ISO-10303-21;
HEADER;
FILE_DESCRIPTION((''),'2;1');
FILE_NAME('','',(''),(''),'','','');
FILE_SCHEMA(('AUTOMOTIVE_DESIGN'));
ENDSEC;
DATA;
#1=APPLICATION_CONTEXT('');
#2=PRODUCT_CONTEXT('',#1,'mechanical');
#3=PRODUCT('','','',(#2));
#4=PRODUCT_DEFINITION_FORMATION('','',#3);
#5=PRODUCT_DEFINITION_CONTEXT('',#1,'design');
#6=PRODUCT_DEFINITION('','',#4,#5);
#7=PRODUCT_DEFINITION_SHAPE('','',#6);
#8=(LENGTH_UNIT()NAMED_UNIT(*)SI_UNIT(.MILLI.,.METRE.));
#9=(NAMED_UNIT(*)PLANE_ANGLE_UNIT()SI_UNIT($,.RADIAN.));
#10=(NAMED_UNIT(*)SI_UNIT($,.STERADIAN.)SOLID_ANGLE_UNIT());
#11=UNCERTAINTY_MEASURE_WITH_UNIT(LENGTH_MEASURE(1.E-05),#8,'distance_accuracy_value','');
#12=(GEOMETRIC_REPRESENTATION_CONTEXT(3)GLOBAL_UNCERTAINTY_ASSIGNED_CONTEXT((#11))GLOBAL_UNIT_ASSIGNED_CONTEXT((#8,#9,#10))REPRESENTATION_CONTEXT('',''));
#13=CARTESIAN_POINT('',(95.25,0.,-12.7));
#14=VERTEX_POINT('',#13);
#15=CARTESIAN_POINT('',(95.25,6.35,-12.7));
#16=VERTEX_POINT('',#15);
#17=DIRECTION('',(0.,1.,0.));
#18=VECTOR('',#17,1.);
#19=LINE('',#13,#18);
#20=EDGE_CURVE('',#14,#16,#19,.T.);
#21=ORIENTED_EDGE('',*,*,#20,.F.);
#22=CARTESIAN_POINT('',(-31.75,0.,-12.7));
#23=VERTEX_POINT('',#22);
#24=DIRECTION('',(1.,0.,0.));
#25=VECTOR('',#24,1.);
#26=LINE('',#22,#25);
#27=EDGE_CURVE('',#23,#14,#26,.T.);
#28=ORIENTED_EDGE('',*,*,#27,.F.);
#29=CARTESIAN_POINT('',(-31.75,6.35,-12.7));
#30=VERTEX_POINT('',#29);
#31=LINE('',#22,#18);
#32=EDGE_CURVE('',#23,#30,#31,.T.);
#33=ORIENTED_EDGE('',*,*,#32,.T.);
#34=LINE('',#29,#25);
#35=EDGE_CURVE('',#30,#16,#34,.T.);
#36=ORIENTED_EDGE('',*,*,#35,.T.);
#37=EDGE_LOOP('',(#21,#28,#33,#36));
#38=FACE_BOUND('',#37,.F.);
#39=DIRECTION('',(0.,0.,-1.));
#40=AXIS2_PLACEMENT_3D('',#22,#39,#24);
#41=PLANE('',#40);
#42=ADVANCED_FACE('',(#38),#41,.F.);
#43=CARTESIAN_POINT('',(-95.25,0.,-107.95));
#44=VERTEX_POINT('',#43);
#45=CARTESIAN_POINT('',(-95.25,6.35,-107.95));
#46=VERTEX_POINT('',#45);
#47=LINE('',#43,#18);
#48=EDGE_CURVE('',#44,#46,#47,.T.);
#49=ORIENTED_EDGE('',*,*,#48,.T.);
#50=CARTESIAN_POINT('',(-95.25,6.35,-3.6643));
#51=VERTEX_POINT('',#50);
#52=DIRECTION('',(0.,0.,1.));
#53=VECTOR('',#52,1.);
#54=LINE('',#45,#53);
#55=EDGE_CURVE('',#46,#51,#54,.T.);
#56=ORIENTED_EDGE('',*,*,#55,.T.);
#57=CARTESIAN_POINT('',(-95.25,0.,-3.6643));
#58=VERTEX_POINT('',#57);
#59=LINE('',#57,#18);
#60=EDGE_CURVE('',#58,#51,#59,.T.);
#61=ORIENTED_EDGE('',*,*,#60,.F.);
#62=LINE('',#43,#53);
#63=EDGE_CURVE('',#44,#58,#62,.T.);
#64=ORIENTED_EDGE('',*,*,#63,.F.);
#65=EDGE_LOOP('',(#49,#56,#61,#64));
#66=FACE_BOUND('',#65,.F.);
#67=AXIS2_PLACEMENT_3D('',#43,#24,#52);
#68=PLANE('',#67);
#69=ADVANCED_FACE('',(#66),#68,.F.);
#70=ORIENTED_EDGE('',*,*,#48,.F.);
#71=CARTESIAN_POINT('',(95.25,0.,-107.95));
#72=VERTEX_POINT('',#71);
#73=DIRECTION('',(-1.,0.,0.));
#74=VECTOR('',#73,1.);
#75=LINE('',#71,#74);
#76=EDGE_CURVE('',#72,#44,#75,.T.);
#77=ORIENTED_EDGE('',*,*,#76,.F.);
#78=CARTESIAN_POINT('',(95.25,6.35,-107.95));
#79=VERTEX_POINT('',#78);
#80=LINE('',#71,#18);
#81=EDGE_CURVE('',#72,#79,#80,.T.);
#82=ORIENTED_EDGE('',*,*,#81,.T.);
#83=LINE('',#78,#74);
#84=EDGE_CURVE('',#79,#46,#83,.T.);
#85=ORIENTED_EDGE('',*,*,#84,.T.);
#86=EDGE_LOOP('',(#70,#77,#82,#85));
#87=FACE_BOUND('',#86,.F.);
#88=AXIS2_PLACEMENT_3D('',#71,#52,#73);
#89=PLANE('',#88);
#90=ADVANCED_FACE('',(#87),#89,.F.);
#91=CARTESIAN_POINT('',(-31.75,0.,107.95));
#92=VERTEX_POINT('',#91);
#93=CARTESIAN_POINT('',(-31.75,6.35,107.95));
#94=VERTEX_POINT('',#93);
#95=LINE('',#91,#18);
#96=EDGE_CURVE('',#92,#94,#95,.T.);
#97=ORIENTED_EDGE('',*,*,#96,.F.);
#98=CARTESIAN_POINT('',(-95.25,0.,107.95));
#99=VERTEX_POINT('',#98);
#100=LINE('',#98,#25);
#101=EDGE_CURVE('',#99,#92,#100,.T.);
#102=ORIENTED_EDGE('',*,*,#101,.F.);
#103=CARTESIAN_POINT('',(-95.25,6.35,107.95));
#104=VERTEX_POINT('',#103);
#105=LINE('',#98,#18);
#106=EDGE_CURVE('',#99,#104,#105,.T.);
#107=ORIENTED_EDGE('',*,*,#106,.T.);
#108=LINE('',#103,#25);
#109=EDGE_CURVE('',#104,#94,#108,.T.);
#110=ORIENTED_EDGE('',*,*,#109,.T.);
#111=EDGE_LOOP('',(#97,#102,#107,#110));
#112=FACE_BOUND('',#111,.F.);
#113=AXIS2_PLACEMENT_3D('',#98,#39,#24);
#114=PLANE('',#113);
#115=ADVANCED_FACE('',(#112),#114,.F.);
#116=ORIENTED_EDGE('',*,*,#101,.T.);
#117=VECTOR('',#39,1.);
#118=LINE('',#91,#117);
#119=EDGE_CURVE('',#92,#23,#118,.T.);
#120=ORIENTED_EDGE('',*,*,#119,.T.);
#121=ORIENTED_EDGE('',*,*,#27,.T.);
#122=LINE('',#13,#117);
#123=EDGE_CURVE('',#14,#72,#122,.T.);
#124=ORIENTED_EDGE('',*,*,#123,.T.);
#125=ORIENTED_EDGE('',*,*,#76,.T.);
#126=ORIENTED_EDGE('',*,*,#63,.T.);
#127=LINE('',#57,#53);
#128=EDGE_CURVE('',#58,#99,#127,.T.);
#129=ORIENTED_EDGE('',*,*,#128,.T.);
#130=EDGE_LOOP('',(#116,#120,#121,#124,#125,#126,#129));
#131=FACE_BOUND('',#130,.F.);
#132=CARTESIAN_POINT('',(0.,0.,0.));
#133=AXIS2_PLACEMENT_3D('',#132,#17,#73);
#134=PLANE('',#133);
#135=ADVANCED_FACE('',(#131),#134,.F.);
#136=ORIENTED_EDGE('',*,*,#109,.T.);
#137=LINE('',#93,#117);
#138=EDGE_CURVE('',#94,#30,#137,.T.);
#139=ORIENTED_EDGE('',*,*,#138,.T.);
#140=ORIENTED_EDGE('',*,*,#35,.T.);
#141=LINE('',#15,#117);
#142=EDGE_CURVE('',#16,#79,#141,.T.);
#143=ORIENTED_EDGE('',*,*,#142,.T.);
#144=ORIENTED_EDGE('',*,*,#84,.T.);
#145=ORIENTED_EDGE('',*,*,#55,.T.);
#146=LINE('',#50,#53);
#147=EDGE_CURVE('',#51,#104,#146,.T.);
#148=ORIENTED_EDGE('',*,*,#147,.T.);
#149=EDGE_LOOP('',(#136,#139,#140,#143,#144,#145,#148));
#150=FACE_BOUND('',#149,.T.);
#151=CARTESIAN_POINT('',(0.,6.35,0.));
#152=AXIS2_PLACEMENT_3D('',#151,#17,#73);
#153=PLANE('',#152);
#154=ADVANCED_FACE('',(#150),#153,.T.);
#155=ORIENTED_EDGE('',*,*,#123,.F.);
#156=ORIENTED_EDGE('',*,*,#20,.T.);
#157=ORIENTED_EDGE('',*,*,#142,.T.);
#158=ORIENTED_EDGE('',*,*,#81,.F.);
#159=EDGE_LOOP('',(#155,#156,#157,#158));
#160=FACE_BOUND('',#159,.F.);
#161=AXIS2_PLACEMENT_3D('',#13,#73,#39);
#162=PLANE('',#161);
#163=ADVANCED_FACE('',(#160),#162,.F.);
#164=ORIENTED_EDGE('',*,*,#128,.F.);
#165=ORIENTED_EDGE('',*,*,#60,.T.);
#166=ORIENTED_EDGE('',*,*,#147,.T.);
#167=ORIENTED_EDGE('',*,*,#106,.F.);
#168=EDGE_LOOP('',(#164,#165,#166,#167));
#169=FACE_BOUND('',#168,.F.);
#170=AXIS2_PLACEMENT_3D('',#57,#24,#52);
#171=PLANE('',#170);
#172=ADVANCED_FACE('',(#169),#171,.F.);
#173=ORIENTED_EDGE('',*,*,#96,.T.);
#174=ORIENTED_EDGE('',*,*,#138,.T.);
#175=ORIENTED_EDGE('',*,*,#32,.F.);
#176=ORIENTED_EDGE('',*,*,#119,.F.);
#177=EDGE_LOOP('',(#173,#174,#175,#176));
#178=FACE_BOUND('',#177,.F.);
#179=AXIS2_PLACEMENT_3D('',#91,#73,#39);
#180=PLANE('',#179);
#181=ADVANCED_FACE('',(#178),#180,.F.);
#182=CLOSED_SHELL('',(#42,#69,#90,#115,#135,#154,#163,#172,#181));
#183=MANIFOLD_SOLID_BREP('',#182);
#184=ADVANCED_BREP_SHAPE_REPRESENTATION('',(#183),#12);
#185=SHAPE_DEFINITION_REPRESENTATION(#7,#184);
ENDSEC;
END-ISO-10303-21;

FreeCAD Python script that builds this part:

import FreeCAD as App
import Part
import Sketcher
from FreeCAD import Vector
Q = App.Units.Quantity


def add_polygon(sketch, points):
    """Adds a closed chain of lines whose ends are joined by coincident constraints."""
    first, n = sketch.GeometryCount, len(points)
    for a, b in zip(points, points[1:] + points[:1]):
        sketch.addGeometry(Part.LineSegment(App.Vector(*a, 0), App.Vector(*b, 0)), False)
    for i in range(n):
        sketch.addConstraint(Sketcher.Constraint("Coincident", first + i, 2, first + (i + 1) % n, 1))

doc = App.newDocument("Part")
params = doc.addObject("Spreadsheet::Sheet", "Params")
for row, (alias, value) in enumerate([
    ("sketch1_width", "2.5 in"),
    ("sketch1_width2", "7.5 in"),
    ("sketch1_height", "8.5 in"),
    ("sketch1_height2", "3.75 in"),
    ("pad1_length", "0.25 in"),
], start=1):
    params.set(f"A{row}", alias)
    params.set(f"B{row}", "=" + value)
    params.setAlias(f"B{row}", alias)

body = doc.addObject("PartDesign::Body", "Body")

# Sketch on XZ plane
sketch1 = body.newObject("Sketcher::SketchObject", "Sketch")
sketch1.AttachmentSupport = (doc.getObject("XZ_Plane"), [""])
sketch1.MapMode = "FlatFace"
add_polygon(sketch1, [(-95, -108), (-95, 108), (-32, 108), (-32, -13), (95, -13), (95, -108)])  # lines 0-5
sketch1.addConstraint([
    Sketcher.Constraint("Vertical", 0),
    Sketcher.Constraint("Horizontal", 1),
    Sketcher.Constraint("Vertical", 2),
    Sketcher.Constraint("Horizontal", 3),
    Sketcher.Constraint("Vertical", 4),
    Sketcher.Constraint("Horizontal", 5),
    Sketcher.Constraint("Symmetric", 0, 2, 4, 2, -1, 1),
    Sketcher.Constraint("DistanceX", 1, 1, 1, 2, Q("2.5 in")),
    Sketcher.Constraint("DistanceX", 5, 2, 5, 1, Q("7.5 in")),
    Sketcher.Constraint("DistanceY", 0, 1, 0, 2, Q("8.5 in")),
    Sketcher.Constraint("DistanceY", 4, 2, 4, 1, Q("3.75 in")),
])
sketch1.setExpression("Constraints[13]", "Params.sketch1_width")
sketch1.setExpression("Constraints[14]", "Params.sketch1_width2")
sketch1.setExpression("Constraints[15]", "Params.sketch1_height")
sketch1.setExpression("Constraints[16]", "Params.sketch1_height2")
pad1 = body.newObject("PartDesign::Pad", "Pad")
pad1.Profile = sketch1
pad1.setExpression("Length", "Params.pad1_length")
pad1.Reversed = True

doc.recompute()
